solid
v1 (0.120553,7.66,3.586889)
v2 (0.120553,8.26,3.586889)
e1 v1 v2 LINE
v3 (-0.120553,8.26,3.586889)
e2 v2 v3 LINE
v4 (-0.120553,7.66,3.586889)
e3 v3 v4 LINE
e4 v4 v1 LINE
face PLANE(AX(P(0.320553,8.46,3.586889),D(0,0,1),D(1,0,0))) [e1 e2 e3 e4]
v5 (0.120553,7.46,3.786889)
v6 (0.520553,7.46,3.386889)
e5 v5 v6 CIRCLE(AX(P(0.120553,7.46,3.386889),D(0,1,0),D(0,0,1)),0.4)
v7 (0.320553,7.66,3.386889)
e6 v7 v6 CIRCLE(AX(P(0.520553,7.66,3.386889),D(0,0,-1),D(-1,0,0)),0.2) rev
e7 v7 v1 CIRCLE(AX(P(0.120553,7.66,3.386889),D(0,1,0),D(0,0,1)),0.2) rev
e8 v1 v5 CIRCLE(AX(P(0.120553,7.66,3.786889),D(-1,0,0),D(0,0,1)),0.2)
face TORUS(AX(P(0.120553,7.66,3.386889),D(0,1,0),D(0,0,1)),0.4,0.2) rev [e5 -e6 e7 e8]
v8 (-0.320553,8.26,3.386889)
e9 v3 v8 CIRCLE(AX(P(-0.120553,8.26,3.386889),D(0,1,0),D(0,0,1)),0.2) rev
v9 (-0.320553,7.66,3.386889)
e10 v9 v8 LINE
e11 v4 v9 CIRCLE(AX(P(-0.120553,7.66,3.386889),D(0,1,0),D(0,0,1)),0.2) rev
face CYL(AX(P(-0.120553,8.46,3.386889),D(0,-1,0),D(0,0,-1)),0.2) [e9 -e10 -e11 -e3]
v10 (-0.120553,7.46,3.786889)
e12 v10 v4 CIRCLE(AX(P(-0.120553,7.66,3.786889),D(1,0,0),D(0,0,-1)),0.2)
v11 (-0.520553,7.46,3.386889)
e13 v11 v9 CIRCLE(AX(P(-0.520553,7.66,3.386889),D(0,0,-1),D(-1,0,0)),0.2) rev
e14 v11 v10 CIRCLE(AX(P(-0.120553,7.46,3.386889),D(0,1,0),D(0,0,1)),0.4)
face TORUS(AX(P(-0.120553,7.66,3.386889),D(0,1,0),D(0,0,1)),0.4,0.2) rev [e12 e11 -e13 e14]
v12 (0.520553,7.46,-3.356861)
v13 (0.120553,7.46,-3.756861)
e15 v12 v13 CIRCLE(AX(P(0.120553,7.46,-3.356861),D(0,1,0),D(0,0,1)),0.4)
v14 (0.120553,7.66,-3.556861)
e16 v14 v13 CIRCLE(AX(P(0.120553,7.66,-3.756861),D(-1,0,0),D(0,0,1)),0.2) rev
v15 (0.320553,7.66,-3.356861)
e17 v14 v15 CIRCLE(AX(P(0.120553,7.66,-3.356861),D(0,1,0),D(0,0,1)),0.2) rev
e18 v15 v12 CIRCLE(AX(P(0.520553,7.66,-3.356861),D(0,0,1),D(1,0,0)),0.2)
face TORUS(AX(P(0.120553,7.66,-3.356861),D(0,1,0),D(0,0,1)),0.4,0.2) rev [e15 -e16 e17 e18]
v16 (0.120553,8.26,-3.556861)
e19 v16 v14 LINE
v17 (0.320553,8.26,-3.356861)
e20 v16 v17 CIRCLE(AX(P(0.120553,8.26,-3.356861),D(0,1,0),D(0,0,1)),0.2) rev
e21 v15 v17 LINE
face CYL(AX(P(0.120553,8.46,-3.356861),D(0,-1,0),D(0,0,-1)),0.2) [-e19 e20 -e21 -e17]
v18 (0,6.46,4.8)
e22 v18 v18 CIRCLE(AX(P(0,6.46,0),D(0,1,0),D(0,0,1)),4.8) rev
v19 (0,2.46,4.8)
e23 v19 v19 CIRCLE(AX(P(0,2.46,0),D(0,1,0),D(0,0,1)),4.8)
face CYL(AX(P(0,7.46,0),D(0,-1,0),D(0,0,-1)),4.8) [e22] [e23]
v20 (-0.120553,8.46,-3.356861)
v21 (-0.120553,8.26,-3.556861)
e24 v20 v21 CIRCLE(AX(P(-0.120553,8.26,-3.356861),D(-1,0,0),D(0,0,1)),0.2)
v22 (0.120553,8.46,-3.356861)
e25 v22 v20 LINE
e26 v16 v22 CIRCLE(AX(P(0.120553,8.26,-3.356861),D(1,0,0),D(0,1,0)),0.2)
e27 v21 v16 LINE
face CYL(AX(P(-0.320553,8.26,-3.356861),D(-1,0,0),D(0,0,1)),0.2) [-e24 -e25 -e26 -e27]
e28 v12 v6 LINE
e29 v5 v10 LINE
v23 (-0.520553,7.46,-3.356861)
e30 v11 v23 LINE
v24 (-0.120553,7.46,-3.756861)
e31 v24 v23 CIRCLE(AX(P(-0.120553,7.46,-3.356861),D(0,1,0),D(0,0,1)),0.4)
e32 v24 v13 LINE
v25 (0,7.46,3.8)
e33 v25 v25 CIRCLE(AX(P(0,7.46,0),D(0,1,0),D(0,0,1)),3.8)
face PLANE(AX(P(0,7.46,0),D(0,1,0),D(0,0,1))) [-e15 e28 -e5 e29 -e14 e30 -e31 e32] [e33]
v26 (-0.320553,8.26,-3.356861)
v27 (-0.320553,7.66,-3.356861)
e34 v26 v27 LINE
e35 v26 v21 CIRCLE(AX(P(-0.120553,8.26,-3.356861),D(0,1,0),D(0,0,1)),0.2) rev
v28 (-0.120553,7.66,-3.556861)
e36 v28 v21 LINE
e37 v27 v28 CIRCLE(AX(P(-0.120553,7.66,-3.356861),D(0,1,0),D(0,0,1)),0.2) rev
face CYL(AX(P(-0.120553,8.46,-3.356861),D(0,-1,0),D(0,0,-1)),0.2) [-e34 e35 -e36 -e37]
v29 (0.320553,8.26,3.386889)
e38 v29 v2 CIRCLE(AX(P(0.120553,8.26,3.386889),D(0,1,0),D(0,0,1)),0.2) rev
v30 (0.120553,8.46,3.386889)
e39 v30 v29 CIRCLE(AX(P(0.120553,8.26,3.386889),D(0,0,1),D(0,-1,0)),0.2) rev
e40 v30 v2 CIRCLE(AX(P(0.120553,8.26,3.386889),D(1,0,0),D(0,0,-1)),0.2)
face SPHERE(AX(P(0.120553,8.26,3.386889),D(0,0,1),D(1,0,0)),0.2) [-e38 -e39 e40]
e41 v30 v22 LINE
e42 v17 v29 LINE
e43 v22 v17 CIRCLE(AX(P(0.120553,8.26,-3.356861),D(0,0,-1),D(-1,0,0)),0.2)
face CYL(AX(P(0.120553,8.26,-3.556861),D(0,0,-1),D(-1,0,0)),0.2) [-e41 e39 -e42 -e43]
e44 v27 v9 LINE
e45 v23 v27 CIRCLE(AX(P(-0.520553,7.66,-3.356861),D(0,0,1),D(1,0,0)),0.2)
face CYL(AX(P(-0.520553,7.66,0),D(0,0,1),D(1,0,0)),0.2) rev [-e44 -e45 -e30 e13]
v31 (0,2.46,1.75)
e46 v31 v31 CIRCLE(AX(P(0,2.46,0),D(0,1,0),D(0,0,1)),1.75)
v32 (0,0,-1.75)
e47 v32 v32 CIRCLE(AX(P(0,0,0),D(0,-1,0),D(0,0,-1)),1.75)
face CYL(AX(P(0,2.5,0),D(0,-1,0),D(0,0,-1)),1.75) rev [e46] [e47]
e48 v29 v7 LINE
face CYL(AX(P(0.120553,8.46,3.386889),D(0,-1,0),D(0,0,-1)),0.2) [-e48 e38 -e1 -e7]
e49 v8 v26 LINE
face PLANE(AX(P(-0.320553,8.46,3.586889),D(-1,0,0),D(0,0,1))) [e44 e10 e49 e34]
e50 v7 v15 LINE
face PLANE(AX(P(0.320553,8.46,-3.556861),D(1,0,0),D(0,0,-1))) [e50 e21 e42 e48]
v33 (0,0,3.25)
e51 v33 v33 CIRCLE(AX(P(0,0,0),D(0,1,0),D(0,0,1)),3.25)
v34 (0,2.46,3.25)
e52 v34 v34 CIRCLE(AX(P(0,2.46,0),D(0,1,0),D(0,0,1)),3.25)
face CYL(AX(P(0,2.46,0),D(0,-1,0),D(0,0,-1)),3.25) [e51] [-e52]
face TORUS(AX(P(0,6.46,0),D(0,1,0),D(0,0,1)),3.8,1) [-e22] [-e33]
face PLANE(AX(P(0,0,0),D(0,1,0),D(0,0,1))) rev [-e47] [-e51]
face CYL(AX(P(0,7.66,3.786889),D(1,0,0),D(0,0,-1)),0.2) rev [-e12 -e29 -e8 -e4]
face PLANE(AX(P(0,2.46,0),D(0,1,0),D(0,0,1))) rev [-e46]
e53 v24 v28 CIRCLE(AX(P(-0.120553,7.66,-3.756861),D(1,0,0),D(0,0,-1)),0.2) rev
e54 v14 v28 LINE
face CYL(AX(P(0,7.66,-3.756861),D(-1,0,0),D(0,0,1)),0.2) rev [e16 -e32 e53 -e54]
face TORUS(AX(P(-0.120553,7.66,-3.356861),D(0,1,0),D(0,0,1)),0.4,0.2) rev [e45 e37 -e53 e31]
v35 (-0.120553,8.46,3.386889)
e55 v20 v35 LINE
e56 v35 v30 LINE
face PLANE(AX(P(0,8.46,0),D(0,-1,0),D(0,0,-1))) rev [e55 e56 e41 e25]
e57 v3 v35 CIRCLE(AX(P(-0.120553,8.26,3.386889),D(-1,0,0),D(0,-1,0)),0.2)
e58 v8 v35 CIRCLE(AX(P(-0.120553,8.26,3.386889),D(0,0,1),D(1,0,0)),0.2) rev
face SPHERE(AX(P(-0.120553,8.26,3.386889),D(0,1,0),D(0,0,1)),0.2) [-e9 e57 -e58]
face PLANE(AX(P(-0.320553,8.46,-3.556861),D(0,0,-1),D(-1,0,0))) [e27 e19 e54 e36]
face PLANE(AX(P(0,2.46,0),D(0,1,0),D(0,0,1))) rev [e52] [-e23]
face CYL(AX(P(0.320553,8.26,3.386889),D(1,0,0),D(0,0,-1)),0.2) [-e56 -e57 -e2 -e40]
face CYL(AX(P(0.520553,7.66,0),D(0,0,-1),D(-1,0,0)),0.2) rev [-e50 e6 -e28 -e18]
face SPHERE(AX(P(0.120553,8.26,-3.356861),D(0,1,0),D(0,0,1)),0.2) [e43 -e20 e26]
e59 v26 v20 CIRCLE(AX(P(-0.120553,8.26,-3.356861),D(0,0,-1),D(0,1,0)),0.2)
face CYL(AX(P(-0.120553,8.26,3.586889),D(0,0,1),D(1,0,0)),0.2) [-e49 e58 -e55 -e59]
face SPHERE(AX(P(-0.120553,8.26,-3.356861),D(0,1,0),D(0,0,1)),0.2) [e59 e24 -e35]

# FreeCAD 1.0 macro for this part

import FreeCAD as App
import Part
import Sketcher


def edges_at(feature, points):
    """Names of the edges that pass closest to the given points."""
    edges = feature.Shape.Edges
    near = lambda p: min(range(len(edges)), key=lambda i: edges[i].distToShape(Part.Vertex(*p))[0])
    return sorted({f"Edge{near(p) + 1}" for p in points})


def add_polygon(sketch, points):
    """Adds a closed chain of lines whose ends are joined by coincident constraints."""
    first, n = sketch.GeometryCount, len(points)
    for a, b in zip(points, points[1:] + points[:1]):
        sketch.addGeometry(Part.LineSegment(App.Vector(*a, 0), App.Vector(*b, 0)), False)
    for i in range(n):
        sketch.addConstraint(Sketcher.Constraint("Coincident", first + i, 2, first + (i + 1) % n, 1))

doc = App.newDocument("Part")
params = doc.addObject("Spreadsheet::Sheet", "Params")
for row, (alias, value) in enumerate([
    ("sketch1_diameter", "6.5 mm"),
    ("pad1_length", "2.46 mm"),
    ("sketch2_diameter", "3.5 mm"),
    ("pocket1_length", "2.5 mm"),
    ("sketch3_diameter", "9.6 mm"),
    ("pad2_length", "5 mm"),
    ("pad3_length", "1 mm"),
    ("fillet_radius", "0.2 mm"),
    ("fillet2_radius", "1 mm"),
], start=1):
    params.set(f"A{row}", alias)
    params.set(f"B{row}", "=" + value)
    params.setAlias(f"B{row}", alias)

body = doc.addObject("PartDesign::Body", "Body")

# Sketch on XZ plane
sketch1 = body.newObject("Sketcher::SketchObject", "Sketch")
sketch1.AttachmentSupport = (doc.getObject("XZ_Plane"), [""])
sketch1.MapMode = "FlatFace"
sketch1.addGeometry(Part.Circle(App.Vector(0, 0, 0), App.Vector(0, 0, 1), 3.2), False)
sketch1.addConstraint([
    Sketcher.Constraint("Coincident", 0, 3, -1, 1),
    Sketcher.Constraint("Diameter", 0, 6.5),
])
sketch1.setExpression("Constraints[1]", "Params.sketch1_diameter")
pad1 = body.newObject("PartDesign::Pad", "Pad")
pad1.Profile = sketch1
pad1.setExpression("Length", "Params.pad1_length")
pad1.Reversed = True

# Sketch on XZ plane
sketch2 = body.newObject("Sketcher::SketchObject", "Sketch001")
sketch2.AttachmentSupport = (doc.getObject("XZ_Plane"), [""])
sketch2.MapMode = "FlatFace"
sketch2.addGeometry(Part.Circle(App.Vector(0, 0, 0), App.Vector(0, 0, 1), 1.8), False)
sketch2.addConstraint([
    Sketcher.Constraint("Coincident", 0, 3, -1, 1),
    Sketcher.Constraint("Diameter", 0, 3.5),
])
sketch2.setExpression("Constraints[1]", "Params.sketch2_diameter")
pocket1 = body.newObject("PartDesign::Pocket", "Pocket")
pocket1.Profile = sketch2
pocket1.setExpression("Length", "Params.pocket1_length")

# Sketch on XZ plane
sketch3 = body.newObject("Sketcher::SketchObject", "Sketch002")
sketch3.AttachmentSupport = (doc.getObject("XZ_Plane"), [""])
sketch3.MapMode = "FlatFace"
sketch3.AttachmentOffset = App.Placement(App.Vector(0, 0, -2.46), App.Rotation())
sketch3.addGeometry(Part.Circle(App.Vector(0, 0, 0), App.Vector(0, 0, 1), 4.8), False)
sketch3.addConstraint([
    Sketcher.Constraint("Coincident", 0, 3, -1, 1),
    Sketcher.Constraint("Diameter", 0, 9.6),
])
sketch3.setExpression("Constraints[1]", "Params.sketch3_diameter")
pad2 = body.newObject("PartDesign::Pad", "Pad001")
pad2.Profile = sketch3
pad2.setExpression("Length", "Params.pad2_length")
pad2.Reversed = True

# Sketch on XZ plane
sketch4 = body.newObject("Sketcher::SketchObject", "Sketch003")
sketch4.AttachmentSupport = (doc.getObject("XZ_Plane"), [""])
sketch4.MapMode = "FlatFace"
sketch4.AttachmentOffset = App.Placement(App.Vector(0, 0, -7.46), App.Rotation())
add_polygon(sketch4, [(-0.3, -3.6), (-0.3, 3.6), (0.3, 3.6), (0.3, -3.6)])  # lines 0-3
sketch4.addConstraint([
    Sketcher.Constraint("Vertical", 0),
    Sketcher.Constraint("Horizontal", 1),
    Sketcher.Constraint("Vertical", 2),
    Sketcher.Constraint("Horizontal", 3),
    Sketcher.Constraint("DistanceY", 0, 1, 0, 2, 7.14375),
    Sketcher.Constraint("DistanceX", 1, 1, 1, 2, 0.641106),
    Sketcher.Constraint("DistanceY", -1, 1, 0, 2, 3.586889),
    Sketcher.Constraint("DistanceX", 0, 2, -1, 1, 0.320553),
])
pad3 = body.newObject("PartDesign::Pad", "Pad002")
pad3.Profile = sketch4
pad3.setExpression("Length", "Params.pad3_length")
pad3.Reversed = True
doc.recompute()

fillet = body.newObject("PartDesign::Fillet", "Fillet")
fillet.Base = (pad3, edges_at(pad3, [
    (-0.321, 8.46, 0.015),
    (-0.321, 7.96, -3.557),
    (0, 8.46, 3.587),
    (-0.321, 7.96, 3.587),
    (0.321, 8.46, 0.015),
    (0.321, 7.96, 3.587),
    (0, 8.46, -3.557),
    (0.321, 7.96, -3.557),
    (-0.321, 7.46, 0.015),
    (0, 7.46, -3.557),
    (0.321, 7.46, 0.015),
    (0, 7.46, 3.587),
]))
fillet.setExpression("Radius", "Params.fillet_radius")
doc.recompute()

fillet2 = body.newObject("PartDesign::Fillet", "Fillet001")
fillet2.Base = (fillet, edges_at(fillet, [(0, 7.46, -4.8)]))
fillet2.setExpression("Radius", "Params.fillet2_radius")

doc.recompute()
